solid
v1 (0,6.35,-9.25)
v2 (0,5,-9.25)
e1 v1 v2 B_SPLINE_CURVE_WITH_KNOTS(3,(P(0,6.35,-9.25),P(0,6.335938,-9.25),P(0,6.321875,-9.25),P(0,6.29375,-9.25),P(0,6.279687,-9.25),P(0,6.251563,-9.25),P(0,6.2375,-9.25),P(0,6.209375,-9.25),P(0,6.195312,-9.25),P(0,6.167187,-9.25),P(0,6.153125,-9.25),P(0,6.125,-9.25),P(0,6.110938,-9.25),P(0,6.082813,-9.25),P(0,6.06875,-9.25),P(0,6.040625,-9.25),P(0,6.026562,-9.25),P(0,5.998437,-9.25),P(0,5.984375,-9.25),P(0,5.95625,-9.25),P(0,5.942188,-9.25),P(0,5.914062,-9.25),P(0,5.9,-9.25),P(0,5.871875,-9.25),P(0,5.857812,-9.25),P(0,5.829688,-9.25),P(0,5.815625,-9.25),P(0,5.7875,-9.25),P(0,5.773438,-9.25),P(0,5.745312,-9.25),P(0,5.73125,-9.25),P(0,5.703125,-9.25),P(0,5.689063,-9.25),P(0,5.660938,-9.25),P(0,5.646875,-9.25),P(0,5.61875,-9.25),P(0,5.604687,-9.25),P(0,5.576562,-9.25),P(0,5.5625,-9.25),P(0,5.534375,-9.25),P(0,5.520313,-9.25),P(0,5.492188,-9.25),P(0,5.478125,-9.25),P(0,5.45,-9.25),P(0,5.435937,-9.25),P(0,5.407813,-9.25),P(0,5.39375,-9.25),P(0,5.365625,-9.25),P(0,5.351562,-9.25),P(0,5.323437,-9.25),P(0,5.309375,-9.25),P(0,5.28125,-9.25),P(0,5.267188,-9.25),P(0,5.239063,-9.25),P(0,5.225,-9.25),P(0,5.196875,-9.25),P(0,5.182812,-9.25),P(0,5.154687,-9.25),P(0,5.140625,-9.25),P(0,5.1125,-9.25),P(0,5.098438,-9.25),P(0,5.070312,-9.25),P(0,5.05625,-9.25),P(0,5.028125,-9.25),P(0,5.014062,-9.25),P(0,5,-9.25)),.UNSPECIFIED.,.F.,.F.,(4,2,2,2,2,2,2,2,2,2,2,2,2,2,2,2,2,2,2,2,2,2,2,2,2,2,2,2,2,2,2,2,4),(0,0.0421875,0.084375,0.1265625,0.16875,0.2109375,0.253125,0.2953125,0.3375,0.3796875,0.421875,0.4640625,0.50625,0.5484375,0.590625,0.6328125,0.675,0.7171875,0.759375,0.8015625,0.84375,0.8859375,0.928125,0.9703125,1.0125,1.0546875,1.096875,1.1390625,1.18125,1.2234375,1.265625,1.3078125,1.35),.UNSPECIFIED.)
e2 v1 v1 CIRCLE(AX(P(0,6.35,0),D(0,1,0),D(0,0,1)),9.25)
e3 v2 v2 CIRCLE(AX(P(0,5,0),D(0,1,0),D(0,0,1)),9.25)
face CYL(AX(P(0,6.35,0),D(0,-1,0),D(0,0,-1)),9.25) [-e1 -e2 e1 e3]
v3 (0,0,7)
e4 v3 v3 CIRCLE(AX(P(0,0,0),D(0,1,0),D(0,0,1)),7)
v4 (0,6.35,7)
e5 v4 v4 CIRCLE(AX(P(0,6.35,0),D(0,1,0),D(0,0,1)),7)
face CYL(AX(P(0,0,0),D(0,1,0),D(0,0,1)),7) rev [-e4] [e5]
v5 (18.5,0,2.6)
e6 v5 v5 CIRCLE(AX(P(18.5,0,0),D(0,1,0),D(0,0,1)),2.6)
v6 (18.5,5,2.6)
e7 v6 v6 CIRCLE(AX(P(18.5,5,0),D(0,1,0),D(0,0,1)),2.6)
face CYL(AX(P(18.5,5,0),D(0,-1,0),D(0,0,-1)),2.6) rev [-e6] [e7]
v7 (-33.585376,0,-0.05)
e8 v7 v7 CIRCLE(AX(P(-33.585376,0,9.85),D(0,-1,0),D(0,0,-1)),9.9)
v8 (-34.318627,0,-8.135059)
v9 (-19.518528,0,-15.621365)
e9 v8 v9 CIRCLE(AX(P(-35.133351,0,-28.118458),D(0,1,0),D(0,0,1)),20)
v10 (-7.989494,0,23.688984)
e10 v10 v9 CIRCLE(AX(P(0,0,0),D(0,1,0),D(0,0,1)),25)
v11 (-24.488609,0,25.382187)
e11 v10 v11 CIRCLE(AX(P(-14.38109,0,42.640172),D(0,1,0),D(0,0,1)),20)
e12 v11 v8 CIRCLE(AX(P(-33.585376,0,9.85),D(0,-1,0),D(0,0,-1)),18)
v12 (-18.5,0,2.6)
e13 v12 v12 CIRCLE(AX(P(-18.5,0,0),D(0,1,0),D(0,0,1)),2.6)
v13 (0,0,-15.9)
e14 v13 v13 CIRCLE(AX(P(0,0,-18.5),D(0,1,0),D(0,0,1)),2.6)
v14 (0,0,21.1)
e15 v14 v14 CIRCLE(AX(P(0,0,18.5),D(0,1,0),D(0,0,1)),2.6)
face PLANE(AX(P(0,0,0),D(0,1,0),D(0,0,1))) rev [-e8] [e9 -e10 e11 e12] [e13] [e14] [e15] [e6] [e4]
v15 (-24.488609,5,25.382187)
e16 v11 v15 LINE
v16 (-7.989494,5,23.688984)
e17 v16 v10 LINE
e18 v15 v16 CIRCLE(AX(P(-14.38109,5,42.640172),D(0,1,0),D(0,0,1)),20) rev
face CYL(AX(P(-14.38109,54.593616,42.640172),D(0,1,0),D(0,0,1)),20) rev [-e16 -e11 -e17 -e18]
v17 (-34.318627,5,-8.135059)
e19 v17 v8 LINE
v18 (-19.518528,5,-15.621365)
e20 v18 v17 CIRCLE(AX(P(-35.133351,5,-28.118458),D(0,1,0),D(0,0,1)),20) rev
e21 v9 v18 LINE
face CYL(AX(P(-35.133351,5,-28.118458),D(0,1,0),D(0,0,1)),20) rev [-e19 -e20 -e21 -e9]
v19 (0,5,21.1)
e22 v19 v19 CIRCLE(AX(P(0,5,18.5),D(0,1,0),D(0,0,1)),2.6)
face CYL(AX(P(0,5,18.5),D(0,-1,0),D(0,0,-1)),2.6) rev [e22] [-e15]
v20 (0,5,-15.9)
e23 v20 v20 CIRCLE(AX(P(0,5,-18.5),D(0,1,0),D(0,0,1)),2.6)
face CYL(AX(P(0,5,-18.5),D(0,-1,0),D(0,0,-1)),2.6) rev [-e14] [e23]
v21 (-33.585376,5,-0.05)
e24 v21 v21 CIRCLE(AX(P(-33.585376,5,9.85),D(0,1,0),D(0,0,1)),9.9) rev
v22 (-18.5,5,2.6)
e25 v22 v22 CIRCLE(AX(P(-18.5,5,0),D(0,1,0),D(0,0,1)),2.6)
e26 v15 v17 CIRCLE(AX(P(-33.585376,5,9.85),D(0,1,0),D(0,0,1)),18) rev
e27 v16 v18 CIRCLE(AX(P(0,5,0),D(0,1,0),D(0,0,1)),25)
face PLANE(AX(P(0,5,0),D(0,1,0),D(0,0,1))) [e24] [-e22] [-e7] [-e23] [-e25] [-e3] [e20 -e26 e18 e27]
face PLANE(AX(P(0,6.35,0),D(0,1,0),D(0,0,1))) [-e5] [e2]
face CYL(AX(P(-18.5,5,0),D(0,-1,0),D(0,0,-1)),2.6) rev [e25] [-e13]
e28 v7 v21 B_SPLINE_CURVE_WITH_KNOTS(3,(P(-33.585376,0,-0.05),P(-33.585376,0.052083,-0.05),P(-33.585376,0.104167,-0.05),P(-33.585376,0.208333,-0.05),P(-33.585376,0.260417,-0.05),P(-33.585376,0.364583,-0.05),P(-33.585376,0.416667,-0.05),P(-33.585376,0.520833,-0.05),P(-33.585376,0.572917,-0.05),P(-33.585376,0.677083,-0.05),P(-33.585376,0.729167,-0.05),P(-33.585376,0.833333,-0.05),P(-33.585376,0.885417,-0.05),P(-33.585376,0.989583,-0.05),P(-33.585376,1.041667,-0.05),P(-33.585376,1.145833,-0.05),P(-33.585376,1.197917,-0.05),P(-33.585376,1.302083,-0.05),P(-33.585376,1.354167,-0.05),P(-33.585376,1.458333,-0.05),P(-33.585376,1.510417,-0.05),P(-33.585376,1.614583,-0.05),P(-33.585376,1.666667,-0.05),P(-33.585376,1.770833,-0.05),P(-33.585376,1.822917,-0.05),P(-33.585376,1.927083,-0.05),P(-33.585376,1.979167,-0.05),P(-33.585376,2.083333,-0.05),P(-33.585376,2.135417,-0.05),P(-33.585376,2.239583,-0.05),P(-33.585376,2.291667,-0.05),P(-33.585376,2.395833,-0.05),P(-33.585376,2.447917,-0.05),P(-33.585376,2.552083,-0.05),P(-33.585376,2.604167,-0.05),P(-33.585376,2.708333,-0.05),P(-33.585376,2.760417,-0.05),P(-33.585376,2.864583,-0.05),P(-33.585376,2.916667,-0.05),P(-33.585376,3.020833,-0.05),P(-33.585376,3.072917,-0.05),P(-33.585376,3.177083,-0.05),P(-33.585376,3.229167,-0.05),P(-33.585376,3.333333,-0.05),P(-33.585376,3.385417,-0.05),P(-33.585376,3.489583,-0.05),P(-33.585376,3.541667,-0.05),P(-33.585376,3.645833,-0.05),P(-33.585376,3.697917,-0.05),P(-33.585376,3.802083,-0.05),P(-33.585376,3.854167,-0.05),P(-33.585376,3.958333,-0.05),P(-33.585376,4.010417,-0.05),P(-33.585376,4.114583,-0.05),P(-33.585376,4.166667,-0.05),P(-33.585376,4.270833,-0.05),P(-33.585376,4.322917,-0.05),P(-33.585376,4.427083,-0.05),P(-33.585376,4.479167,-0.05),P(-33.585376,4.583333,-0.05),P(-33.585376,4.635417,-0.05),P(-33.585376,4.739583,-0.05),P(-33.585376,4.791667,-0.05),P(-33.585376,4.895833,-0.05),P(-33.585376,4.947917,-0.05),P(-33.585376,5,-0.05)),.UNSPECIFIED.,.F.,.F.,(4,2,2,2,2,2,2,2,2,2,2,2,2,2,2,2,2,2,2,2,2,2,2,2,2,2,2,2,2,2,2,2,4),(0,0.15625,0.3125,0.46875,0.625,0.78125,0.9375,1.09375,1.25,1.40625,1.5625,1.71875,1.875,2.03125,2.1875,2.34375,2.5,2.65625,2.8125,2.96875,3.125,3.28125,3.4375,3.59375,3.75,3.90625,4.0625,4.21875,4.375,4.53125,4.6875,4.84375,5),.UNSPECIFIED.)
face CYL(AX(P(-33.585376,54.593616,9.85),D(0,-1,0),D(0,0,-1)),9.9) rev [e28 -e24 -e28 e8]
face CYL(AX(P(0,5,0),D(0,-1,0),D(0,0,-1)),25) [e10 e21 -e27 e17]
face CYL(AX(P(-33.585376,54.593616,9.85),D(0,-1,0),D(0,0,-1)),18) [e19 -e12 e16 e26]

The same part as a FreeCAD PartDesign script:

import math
import FreeCAD as App
import Part
import Sketcher
from FreeCAD import Vector
Q = App.Units.Quantity


def edges_at(feature, points):
    """Names of the edges that pass closest to the given points."""
    edges = feature.Shape.Edges
    near = lambda p: min(range(len(edges)), key=lambda i: edges[i].distToShape(Part.Vertex(*p))[0])
    return sorted({f"Edge{near(p) + 1}" for p in points})

doc = App.newDocument("Part")
body = doc.addObject("PartDesign::Body", "Body")

sketch1 = body.newObject("Sketcher::SketchObject", "Sketch")
sketch1.AttachmentSupport = (doc.getObject("XZ_Plane"), [""])
sketch1.MapMode = "FlatFace"
sketch1.addGeometry([
    Part.Circle(Vector(0, 0, 0), Vector(0, 0, 1), 25),
    Part.Circle(Vector(0, -18.5, 0), Vector(0, 0, 1), 2.6),
    Part.Circle(Vector(-18.5, 0, 0), Vector(0, 0, 1), 2.6),
    Part.Circle(Vector(18.5, 0, 0), Vector(0, 0, 1), 2.6),
    Part.Circle(Vector(0, 18.5, 0), Vector(0, 0, 1), 2.6),
], False)
sketch1.addConstraint([
    Sketcher.Constraint("Coincident", 0, 3, -1, 1),
    Sketcher.Constraint("Equal", 1, 2),
    Sketcher.Constraint("Equal", 2, 3),
    Sketcher.Constraint("Equal", 3, 4),
    Sketcher.Constraint("Symmetric", 2, 3, 3, 3, -1, 1),
    Sketcher.Constraint("Symmetric", 1, 3, 4, 3, -1, 1),
    Sketcher.Constraint("PointOnObject", 1, 3, -2),
    Sketcher.Constraint("PointOnObject", 2, 3, -1),
    Sketcher.Constraint("Diameter", 0, Q("50 mm")),
    Sketcher.Constraint("Diameter", 1, Q("5.2 mm")),
    Sketcher.Constraint("DistanceX", 2, 3, 3, 3, Q("37 mm")),
    Sketcher.Constraint("DistanceY", 1, 3, 4, 3, Q("37 mm")),
])
pad1 = body.newObject("PartDesign::Pad", "Pad")
pad1.Profile = sketch1
pad1.Length = 5
pad1.Reversed = True

sketch2 = body.newObject("Sketcher::SketchObject", "Sketch001")
sketch2.AttachmentSupport = (doc.getObject("XZ_Plane"), [""])
sketch2.MapMode = "FlatFace"
sketch2.AttachmentOffset = App.Placement(Vector(0, 0, -5), App.Rotation())
sketch2.addGeometry(Part.Circle(Vector(0, 0, 0), Vector(0, 0, 1), 9), False)
sketch2.addConstraint([
    Sketcher.Constraint("Coincident", 0, 3, -1, 1),
    Sketcher.Constraint("Diameter", 0, Q("18.5 mm")),
])
pad2 = body.newObject("PartDesign::Pad", "Pad001")
pad2.Profile = sketch2
pad2.Length = 1.35
pad2.Reversed = True

sketch3 = body.newObject("Sketcher::SketchObject", "Sketch002")
sketch3.AttachmentSupport = (doc.getObject("XZ_Plane"), [""])
sketch3.MapMode = "FlatFace"
sketch3.AttachmentOffset = App.Placement(Vector(0, 0, -6.35), App.Rotation())
sketch3.addGeometry(Part.Circle(Vector(0, 0, 0), Vector(0, 0, 1), 7), False)
sketch3.addConstraint([
    Sketcher.Constraint("Coincident", 0, 3, -1, 1),
    Sketcher.Constraint("Diameter", 0, Q("14 mm")),
])
pocket1 = body.newObject("PartDesign::Pocket", "Pocket")
pocket1.Profile = sketch3
pocket1.Type = "ThroughAll"
pocket1.Reversed = True

sketch4 = body.newObject("Sketcher::SketchObject", "Sketch003")
sketch4.AttachmentSupport = (doc.getObject("XZ_Plane"), [""])
sketch4.MapMode = "FlatFace"
sketch4.addGeometry([
    Part.ArcOfCircle(Part.Circle(Vector(-34, 10, 0), Vector(0, 0, 1), 18), math.radians(26), math.radians(301)),
    Part.ArcOfCircle(Part.Circle(Vector(0, 0, 0), Vector(0, 0, 1), 25), math.radians(134), math.radians(193)),
    Part.Circle(Vector(-34, 10, 0), Vector(0, 0, 1), 10),
], False)
sketch4.addConstraint([
    Sketcher.Constraint("Coincident", 0, 1, 1, 1),
    Sketcher.Constraint("Coincident", 1, 2, 0, 2),
    Sketcher.Constraint("Coincident", 1, 3, -1, 1),
    Sketcher.Constraint("Coincident", 2, 3, 0, 3),
    Sketcher.Constraint("Radius", 0, Q("18 mm")),
    Sketcher.Constraint("Radius", 1, Q("25 mm")),
    Sketcher.Constraint("Diameter", 2, Q("19.8 mm")),
    Sketcher.Constraint("DistanceY", -1, 1, 0, 3, Q("9.85 mm")),
    Sketcher.Constraint("DistanceX", 0, 1, -1, 1, Q("17.474868 mm")),
])
pad3 = body.newObject("PartDesign::Pad", "Pad002")
pad3.Profile = sketch4
pad3.Length = 5
pad3.Reversed = True
doc.recompute()

fillet = body.newObject("PartDesign::Fillet", "Fillet")
fillet.Base = (pad3, edges_at(pad3, [(-17.475, 2.5, 17.878), (-24.363, 2.5, -5.608)]))
fillet.Radius = 20

doc.recompute()
